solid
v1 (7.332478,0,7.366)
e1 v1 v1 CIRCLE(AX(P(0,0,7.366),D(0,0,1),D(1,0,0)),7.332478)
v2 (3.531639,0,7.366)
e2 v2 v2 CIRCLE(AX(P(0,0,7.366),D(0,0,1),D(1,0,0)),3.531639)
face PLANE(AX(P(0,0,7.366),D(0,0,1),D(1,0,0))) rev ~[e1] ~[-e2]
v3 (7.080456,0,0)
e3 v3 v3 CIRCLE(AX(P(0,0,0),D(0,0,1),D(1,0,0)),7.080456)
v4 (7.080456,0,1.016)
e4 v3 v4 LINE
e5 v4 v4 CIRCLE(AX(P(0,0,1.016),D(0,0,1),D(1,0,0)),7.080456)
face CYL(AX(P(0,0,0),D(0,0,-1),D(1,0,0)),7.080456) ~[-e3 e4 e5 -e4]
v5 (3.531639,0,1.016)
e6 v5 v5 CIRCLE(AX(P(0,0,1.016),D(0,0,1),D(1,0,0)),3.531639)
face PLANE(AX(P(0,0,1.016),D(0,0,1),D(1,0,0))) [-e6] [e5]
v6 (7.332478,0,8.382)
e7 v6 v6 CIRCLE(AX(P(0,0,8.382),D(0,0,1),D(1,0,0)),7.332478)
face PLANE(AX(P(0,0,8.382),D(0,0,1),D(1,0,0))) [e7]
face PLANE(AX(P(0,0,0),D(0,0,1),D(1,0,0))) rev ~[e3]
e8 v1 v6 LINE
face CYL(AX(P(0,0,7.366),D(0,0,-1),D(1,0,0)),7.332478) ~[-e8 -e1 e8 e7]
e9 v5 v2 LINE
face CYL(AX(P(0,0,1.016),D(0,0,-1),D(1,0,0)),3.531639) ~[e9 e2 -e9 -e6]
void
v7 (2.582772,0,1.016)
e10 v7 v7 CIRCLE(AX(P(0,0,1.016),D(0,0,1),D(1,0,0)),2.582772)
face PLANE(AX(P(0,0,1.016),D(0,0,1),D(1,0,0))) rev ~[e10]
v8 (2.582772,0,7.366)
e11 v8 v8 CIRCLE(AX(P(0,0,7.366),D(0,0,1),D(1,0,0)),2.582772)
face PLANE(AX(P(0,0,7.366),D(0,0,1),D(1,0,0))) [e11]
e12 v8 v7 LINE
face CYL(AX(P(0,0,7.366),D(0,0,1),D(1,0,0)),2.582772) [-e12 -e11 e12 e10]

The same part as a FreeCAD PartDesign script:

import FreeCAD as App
import Part
import Sketcher

V = App.Vector
Q = App.Units.Quantity

doc = App.newDocument("Part")
body = doc.addObject("PartDesign::Body", "Body")

sketch1 = body.newObject("Sketcher::SketchObject", "Sketch")
sketch1.AttachmentSupport = (doc.getObject("XY_Plane"), [""])
sketch1.MapMode = "FlatFace"
sketch1.addGeometry(Part.Circle(V(0, 0, 0), V(0, 0, 1), 7), False)
sketch1.addConstraint([
    Sketcher.Constraint("Coincident", 0, 3, -1, 1),
    Sketcher.Constraint("Diameter", 0, 14.160912),
])
pad1 = body.newObject("PartDesign::Pad", "Pad")
pad1.Profile = sketch1
pad1.Length = Q("0.04 in")

sketch2 = body.newObject("Sketcher::SketchObject", "Sketch001")
sketch2.AttachmentSupport = (doc.getObject("XY_Plane"), [""])
sketch2.MapMode = "FlatFace"
sketch2.AttachmentOffset = App.Placement(V(0, 0, 0.04 * 25.4), App.Rotation())
sketch2.addGeometry(Part.Circle(V(0, 0, 0), V(0, 0, 1), 3.5), False)
sketch2.addConstraint([
    Sketcher.Constraint("Coincident", 0, 3, -1, 1),
    Sketcher.Constraint("Diameter", 0, 7.063278),
])
pad2 = body.newObject("PartDesign::Pad", "Pad001")
pad2.Profile = sketch2
pad2.Length = Q("0.25 in")

sketch3 = body.newObject("Sketcher::SketchObject", "Sketch002")
sketch3.AttachmentSupport = (doc.getObject("XY_Plane"), [""])
sketch3.MapMode = "FlatFace"
sketch3.AttachmentOffset = App.Placement(V(0, 0, 0.29 * 25.4), App.Rotation())
sketch3.addGeometry(Part.Circle(V(0, 0, 0), V(0, 0, 1), 2.6), False)
sketch3.addConstraint([
    Sketcher.Constraint("Coincident", 0, 3, -1, 1),
    Sketcher.Constraint("Diameter", 0, 5.165544),
])
pocket1 = body.newObject("PartDesign::Pocket", "Pocket")
pocket1.Profile = sketch3
pocket1.Length = Q("0.25 in")

sketch4 = body.newObject("Sketcher::SketchObject", "Sketch003")
sketch4.AttachmentSupport = (doc.getObject("XY_Plane"), [""])
sketch4.MapMode = "FlatFace"
sketch4.AttachmentOffset = App.Placement(V(0, 0, 0.29 * 25.4), App.Rotation())
sketch4.addGeometry(Part.Circle(V(0, 0, 0), V(0, 0, 1), 7), False)
sketch4.addConstraint([
    Sketcher.Constraint("Coincident", 0, 3, -1, 1),
    Sketcher.Constraint("Diameter", 0, 14.664956),
])
pad3 = body.newObject("PartDesign::Pad", "Pad002")
pad3.Profile = sketch4
pad3.Length = Q("0.04 in")

doc.recompute()
